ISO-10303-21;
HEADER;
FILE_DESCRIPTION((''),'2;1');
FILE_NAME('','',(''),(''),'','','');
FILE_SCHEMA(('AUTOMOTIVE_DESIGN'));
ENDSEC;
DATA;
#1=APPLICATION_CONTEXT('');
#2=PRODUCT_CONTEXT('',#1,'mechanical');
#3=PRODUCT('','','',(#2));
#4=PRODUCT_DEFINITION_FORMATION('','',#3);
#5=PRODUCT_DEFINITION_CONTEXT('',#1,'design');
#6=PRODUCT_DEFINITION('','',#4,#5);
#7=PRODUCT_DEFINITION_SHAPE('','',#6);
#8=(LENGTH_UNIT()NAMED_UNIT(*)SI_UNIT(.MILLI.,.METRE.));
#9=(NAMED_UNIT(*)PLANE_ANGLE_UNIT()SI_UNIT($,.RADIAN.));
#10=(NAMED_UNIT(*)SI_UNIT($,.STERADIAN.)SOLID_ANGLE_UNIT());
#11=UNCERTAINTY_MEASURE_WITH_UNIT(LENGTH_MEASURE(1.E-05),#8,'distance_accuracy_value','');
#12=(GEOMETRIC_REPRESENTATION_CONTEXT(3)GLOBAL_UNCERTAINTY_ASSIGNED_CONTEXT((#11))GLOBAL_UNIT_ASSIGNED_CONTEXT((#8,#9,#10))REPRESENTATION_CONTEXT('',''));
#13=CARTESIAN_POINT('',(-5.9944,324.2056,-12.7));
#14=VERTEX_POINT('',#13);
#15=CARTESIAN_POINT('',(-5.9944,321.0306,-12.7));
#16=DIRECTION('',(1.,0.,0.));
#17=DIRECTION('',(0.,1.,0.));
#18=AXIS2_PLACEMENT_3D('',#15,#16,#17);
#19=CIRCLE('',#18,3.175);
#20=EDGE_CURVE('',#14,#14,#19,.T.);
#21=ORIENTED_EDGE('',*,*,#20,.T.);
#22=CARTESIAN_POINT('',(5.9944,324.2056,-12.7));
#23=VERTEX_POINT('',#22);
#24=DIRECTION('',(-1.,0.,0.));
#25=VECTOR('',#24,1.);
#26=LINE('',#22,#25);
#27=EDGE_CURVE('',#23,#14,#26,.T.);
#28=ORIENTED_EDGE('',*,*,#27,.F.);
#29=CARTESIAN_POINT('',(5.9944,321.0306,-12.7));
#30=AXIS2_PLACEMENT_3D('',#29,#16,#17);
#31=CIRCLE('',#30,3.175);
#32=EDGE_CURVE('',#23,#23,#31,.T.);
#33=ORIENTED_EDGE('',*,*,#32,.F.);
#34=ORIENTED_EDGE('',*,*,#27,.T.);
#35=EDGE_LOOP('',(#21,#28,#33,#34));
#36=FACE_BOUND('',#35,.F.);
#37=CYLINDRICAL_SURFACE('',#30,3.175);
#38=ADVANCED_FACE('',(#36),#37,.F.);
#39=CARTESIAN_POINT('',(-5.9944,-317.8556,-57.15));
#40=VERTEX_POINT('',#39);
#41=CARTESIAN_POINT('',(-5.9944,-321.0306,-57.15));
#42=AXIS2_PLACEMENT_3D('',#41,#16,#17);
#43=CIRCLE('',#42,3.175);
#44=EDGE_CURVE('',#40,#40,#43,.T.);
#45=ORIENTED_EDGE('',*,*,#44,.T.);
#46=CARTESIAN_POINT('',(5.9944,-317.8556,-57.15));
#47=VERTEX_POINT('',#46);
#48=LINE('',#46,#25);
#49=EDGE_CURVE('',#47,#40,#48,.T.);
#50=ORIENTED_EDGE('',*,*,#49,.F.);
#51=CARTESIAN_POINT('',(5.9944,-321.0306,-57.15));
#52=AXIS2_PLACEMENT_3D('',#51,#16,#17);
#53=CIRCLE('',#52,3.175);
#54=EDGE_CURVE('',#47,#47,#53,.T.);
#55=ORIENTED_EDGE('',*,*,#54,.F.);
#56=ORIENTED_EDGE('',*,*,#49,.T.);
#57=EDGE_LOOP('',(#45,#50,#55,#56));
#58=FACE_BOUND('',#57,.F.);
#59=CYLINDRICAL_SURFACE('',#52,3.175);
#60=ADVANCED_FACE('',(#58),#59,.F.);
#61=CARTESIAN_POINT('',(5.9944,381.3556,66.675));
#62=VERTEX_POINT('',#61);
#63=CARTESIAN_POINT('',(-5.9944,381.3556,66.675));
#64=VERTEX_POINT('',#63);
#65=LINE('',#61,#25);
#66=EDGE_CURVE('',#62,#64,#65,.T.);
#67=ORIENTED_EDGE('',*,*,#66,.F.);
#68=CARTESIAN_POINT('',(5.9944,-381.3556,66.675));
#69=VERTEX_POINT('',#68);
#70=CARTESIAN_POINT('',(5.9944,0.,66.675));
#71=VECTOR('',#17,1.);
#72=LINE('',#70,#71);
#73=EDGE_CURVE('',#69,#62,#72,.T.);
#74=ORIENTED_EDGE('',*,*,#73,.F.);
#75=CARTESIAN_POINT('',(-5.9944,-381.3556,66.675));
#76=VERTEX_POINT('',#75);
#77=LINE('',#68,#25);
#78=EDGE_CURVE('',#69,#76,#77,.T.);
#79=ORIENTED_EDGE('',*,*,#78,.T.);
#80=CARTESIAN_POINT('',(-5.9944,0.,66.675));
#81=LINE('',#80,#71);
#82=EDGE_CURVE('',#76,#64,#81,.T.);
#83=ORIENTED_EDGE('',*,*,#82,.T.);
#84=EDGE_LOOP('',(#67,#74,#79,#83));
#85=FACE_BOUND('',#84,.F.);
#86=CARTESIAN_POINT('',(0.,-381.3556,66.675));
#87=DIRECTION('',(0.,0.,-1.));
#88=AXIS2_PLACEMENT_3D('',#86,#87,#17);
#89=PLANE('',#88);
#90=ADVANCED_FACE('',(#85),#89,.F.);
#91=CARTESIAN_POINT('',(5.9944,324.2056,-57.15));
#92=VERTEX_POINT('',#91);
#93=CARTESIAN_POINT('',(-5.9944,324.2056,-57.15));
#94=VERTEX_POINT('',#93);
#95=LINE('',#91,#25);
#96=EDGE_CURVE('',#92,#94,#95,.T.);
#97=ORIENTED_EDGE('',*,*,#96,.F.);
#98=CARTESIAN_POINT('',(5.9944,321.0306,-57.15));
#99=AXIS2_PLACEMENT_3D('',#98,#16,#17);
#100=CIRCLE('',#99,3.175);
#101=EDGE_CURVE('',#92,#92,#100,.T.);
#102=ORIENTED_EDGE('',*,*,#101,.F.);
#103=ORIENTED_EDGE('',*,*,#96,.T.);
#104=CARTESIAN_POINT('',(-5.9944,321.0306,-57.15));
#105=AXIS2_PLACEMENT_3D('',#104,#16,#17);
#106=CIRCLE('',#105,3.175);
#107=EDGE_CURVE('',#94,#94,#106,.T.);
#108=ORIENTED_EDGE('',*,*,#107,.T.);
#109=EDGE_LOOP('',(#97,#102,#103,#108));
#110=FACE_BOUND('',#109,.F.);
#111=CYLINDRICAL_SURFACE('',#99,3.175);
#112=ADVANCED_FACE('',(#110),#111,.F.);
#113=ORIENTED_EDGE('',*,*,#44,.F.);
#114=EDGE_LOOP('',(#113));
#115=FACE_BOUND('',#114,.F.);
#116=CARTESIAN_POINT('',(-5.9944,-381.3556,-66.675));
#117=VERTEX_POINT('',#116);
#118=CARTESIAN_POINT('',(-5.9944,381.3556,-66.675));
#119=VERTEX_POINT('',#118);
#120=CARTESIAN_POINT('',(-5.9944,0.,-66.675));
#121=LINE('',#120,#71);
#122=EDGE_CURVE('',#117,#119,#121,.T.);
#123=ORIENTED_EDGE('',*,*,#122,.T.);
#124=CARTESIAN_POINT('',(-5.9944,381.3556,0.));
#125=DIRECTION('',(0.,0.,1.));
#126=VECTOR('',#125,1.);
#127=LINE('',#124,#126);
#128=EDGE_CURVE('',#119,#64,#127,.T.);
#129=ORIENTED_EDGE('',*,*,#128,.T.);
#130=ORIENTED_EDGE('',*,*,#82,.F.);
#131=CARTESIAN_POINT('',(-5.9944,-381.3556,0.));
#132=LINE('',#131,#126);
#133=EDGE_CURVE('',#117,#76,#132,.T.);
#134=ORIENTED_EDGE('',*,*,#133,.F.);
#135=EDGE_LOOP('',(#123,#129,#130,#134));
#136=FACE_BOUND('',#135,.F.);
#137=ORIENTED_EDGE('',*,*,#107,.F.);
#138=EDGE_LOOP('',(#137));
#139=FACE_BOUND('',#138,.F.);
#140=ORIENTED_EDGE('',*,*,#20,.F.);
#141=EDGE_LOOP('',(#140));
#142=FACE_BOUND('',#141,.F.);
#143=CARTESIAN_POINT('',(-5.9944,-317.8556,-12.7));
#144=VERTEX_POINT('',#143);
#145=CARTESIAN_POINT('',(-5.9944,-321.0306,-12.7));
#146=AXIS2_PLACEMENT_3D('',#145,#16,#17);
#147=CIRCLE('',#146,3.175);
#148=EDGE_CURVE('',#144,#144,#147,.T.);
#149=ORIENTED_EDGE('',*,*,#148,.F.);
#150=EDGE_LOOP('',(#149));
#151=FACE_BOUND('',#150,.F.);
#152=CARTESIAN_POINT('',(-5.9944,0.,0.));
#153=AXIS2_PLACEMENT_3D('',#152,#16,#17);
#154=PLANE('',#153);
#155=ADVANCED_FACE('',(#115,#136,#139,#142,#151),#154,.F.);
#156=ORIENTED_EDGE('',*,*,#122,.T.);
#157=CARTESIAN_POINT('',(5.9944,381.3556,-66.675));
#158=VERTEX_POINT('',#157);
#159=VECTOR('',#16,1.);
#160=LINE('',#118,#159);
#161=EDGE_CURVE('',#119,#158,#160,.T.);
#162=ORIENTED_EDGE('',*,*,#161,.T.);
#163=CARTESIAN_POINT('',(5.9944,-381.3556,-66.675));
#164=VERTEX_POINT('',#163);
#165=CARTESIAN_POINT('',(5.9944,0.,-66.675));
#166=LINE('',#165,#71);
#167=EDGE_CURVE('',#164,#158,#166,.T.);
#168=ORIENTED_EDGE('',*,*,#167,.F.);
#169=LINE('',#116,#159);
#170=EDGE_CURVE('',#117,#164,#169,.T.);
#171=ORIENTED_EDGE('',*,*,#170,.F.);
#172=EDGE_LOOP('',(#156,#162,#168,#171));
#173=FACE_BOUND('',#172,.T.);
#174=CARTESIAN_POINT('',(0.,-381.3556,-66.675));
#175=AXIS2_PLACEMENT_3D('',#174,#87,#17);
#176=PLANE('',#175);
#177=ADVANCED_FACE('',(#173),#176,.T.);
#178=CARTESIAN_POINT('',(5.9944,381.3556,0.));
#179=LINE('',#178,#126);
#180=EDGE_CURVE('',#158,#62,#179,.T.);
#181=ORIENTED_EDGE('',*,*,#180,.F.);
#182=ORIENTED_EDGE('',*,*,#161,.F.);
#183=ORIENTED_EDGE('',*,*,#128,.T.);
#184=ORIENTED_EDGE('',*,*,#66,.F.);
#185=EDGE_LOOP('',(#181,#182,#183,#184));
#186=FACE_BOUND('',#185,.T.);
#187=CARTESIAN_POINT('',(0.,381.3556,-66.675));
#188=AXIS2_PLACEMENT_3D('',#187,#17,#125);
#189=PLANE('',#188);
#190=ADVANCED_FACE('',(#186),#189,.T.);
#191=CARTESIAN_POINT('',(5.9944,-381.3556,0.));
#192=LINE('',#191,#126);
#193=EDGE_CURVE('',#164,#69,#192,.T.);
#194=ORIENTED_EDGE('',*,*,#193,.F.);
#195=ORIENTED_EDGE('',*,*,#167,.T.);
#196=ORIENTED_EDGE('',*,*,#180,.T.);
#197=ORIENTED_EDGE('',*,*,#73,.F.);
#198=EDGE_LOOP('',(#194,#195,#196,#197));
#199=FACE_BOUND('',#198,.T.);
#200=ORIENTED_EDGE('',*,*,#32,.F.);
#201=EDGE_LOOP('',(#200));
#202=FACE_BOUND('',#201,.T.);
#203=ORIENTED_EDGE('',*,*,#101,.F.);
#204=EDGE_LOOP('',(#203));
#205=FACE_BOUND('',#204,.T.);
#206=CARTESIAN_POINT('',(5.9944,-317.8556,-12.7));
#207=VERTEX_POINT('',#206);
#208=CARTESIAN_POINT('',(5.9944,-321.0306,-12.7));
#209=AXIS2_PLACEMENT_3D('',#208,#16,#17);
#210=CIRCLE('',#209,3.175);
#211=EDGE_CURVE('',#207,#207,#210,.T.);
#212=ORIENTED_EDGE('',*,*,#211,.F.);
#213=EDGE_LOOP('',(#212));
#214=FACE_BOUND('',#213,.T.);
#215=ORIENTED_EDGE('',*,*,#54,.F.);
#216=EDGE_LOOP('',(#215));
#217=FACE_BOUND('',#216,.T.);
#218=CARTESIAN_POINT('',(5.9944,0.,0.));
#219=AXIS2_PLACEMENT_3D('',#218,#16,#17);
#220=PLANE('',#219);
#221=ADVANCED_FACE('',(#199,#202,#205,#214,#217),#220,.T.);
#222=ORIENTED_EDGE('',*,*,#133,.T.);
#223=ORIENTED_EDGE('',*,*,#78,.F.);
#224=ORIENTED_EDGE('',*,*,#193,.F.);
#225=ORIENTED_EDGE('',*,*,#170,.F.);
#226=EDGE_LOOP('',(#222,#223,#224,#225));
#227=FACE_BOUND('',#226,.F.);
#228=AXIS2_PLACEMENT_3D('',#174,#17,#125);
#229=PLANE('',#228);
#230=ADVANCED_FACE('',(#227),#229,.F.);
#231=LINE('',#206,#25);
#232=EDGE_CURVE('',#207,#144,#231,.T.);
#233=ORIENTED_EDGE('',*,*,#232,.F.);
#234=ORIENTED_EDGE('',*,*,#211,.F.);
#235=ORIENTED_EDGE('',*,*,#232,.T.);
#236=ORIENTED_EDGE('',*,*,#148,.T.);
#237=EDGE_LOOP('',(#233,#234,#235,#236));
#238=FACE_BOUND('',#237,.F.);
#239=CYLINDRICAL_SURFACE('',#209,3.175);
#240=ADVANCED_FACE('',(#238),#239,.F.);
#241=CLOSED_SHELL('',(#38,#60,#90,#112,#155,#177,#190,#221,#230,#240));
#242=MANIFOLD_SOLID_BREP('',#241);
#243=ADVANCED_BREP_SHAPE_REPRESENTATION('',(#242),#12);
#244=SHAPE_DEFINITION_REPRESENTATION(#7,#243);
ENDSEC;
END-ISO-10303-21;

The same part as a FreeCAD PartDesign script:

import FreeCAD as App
import Part
import Sketcher

V = App.Vector
Q = App.Units.Quantity


def add_polygon(sketch, points):
    """Adds a closed chain of lines whose ends are joined by coincident constraints."""
    first, n = sketch.GeometryCount, len(points)
    for a, b in zip(points, points[1:] + points[:1]):
        sketch.addGeometry(Part.LineSegment(App.Vector(*a, 0), App.Vector(*b, 0)), False)
    for i in range(n):
        sketch.addConstraint(Sketcher.Constraint("Coincident", first + i, 2, first + (i + 1) % n, 1))

doc = App.newDocument("Part")
body = doc.addObject("PartDesign::Body", "Body")

sketch1 = doc.addObject("Sketcher::SketchObject", "Sketch")
body.addObject(sketch1)
sketch1.AttachmentSupport = (doc.YZ_Plane, [""])
sketch1.MapMode = "FlatFace"
add_polygon(sketch1, [(-381, 67), (-381, -67), (381, -67), (381, 67)])
sketch1.addConstraint([
    Sketcher.Constraint("Vertical", 0),
    Sketcher.Constraint("Horizontal", 1),
    Sketcher.Constraint("Vertical", 2),
    Sketcher.Constraint("Horizontal", 3),
    Sketcher.Constraint("Symmetric", 0, 2, 2, 2, -1, 1),
    Sketcher.Constraint("DistanceY", 0, 2, 0, 1, Q("5.25 in")),
    Sketcher.Constraint("DistanceX", 1, 1, 1, 2, Q("30.028 in")),
])
pad1 = doc.addObject("PartDesign::Pad", "Pad")
body.addObject(pad1)
pad1.Profile = sketch1
pad1.Length = Q("0.472 in")
pad1.Midplane = True

sketch2 = doc.addObject("Sketcher::SketchObject", "Sketch001")
body.addObject(sketch2)
sketch2.AttachmentSupport = (doc.YZ_Plane, [""])
sketch2.MapMode = "FlatFace"
sketch2.AttachmentOffset = App.Placement(V(0, 0, 0.236 * 25.4), App.Rotation())
sketch2.addGeometry([
    Part.Circle(V(-321, -12.7, 0), V(0, 0, 1), 3.2),
    Part.Circle(V(-321, -57.1, 0), V(0, 0, 1), 3.2),
    Part.Circle(V(321, -57.1, 0), V(0, 0, 1), 3.2),
    Part.Circle(V(321, -12.7, 0), V(0, 0, 1), 3.2),
], False)
sketch2.addConstraint([
    Sketcher.Constraint("Equal", 0, 1),
    Sketcher.Constraint("Equal", 1, 2),
    Sketcher.Constraint("Equal", 2, 3),
    Sketcher.Constraint("Symmetric", 1, 3, 2, 3, -2),
    Sketcher.Constraint("Symmetric", 0, 3, 3, 3, -2),
    Sketcher.Constraint("Vertical", 0, 3, 1, 3),
    Sketcher.Constraint("Diameter", 0, Q("0.25 in")),
    Sketcher.Constraint("DistanceY", 0, 3, -1, 1, Q("0.5 in")),
    Sketcher.Constraint("DistanceY", 1, 3, -1, 1, Q("2.25 in")),
    Sketcher.Constraint("DistanceX", 0, 3, -1, 1, Q("12.639 in")),
])
pocket1 = doc.addObject("PartDesign::Pocket", "Pocket")
body.addObject(pocket1)
pocket1.Profile = sketch2
pocket1.Type = "ThroughAll"

doc.recompute()
